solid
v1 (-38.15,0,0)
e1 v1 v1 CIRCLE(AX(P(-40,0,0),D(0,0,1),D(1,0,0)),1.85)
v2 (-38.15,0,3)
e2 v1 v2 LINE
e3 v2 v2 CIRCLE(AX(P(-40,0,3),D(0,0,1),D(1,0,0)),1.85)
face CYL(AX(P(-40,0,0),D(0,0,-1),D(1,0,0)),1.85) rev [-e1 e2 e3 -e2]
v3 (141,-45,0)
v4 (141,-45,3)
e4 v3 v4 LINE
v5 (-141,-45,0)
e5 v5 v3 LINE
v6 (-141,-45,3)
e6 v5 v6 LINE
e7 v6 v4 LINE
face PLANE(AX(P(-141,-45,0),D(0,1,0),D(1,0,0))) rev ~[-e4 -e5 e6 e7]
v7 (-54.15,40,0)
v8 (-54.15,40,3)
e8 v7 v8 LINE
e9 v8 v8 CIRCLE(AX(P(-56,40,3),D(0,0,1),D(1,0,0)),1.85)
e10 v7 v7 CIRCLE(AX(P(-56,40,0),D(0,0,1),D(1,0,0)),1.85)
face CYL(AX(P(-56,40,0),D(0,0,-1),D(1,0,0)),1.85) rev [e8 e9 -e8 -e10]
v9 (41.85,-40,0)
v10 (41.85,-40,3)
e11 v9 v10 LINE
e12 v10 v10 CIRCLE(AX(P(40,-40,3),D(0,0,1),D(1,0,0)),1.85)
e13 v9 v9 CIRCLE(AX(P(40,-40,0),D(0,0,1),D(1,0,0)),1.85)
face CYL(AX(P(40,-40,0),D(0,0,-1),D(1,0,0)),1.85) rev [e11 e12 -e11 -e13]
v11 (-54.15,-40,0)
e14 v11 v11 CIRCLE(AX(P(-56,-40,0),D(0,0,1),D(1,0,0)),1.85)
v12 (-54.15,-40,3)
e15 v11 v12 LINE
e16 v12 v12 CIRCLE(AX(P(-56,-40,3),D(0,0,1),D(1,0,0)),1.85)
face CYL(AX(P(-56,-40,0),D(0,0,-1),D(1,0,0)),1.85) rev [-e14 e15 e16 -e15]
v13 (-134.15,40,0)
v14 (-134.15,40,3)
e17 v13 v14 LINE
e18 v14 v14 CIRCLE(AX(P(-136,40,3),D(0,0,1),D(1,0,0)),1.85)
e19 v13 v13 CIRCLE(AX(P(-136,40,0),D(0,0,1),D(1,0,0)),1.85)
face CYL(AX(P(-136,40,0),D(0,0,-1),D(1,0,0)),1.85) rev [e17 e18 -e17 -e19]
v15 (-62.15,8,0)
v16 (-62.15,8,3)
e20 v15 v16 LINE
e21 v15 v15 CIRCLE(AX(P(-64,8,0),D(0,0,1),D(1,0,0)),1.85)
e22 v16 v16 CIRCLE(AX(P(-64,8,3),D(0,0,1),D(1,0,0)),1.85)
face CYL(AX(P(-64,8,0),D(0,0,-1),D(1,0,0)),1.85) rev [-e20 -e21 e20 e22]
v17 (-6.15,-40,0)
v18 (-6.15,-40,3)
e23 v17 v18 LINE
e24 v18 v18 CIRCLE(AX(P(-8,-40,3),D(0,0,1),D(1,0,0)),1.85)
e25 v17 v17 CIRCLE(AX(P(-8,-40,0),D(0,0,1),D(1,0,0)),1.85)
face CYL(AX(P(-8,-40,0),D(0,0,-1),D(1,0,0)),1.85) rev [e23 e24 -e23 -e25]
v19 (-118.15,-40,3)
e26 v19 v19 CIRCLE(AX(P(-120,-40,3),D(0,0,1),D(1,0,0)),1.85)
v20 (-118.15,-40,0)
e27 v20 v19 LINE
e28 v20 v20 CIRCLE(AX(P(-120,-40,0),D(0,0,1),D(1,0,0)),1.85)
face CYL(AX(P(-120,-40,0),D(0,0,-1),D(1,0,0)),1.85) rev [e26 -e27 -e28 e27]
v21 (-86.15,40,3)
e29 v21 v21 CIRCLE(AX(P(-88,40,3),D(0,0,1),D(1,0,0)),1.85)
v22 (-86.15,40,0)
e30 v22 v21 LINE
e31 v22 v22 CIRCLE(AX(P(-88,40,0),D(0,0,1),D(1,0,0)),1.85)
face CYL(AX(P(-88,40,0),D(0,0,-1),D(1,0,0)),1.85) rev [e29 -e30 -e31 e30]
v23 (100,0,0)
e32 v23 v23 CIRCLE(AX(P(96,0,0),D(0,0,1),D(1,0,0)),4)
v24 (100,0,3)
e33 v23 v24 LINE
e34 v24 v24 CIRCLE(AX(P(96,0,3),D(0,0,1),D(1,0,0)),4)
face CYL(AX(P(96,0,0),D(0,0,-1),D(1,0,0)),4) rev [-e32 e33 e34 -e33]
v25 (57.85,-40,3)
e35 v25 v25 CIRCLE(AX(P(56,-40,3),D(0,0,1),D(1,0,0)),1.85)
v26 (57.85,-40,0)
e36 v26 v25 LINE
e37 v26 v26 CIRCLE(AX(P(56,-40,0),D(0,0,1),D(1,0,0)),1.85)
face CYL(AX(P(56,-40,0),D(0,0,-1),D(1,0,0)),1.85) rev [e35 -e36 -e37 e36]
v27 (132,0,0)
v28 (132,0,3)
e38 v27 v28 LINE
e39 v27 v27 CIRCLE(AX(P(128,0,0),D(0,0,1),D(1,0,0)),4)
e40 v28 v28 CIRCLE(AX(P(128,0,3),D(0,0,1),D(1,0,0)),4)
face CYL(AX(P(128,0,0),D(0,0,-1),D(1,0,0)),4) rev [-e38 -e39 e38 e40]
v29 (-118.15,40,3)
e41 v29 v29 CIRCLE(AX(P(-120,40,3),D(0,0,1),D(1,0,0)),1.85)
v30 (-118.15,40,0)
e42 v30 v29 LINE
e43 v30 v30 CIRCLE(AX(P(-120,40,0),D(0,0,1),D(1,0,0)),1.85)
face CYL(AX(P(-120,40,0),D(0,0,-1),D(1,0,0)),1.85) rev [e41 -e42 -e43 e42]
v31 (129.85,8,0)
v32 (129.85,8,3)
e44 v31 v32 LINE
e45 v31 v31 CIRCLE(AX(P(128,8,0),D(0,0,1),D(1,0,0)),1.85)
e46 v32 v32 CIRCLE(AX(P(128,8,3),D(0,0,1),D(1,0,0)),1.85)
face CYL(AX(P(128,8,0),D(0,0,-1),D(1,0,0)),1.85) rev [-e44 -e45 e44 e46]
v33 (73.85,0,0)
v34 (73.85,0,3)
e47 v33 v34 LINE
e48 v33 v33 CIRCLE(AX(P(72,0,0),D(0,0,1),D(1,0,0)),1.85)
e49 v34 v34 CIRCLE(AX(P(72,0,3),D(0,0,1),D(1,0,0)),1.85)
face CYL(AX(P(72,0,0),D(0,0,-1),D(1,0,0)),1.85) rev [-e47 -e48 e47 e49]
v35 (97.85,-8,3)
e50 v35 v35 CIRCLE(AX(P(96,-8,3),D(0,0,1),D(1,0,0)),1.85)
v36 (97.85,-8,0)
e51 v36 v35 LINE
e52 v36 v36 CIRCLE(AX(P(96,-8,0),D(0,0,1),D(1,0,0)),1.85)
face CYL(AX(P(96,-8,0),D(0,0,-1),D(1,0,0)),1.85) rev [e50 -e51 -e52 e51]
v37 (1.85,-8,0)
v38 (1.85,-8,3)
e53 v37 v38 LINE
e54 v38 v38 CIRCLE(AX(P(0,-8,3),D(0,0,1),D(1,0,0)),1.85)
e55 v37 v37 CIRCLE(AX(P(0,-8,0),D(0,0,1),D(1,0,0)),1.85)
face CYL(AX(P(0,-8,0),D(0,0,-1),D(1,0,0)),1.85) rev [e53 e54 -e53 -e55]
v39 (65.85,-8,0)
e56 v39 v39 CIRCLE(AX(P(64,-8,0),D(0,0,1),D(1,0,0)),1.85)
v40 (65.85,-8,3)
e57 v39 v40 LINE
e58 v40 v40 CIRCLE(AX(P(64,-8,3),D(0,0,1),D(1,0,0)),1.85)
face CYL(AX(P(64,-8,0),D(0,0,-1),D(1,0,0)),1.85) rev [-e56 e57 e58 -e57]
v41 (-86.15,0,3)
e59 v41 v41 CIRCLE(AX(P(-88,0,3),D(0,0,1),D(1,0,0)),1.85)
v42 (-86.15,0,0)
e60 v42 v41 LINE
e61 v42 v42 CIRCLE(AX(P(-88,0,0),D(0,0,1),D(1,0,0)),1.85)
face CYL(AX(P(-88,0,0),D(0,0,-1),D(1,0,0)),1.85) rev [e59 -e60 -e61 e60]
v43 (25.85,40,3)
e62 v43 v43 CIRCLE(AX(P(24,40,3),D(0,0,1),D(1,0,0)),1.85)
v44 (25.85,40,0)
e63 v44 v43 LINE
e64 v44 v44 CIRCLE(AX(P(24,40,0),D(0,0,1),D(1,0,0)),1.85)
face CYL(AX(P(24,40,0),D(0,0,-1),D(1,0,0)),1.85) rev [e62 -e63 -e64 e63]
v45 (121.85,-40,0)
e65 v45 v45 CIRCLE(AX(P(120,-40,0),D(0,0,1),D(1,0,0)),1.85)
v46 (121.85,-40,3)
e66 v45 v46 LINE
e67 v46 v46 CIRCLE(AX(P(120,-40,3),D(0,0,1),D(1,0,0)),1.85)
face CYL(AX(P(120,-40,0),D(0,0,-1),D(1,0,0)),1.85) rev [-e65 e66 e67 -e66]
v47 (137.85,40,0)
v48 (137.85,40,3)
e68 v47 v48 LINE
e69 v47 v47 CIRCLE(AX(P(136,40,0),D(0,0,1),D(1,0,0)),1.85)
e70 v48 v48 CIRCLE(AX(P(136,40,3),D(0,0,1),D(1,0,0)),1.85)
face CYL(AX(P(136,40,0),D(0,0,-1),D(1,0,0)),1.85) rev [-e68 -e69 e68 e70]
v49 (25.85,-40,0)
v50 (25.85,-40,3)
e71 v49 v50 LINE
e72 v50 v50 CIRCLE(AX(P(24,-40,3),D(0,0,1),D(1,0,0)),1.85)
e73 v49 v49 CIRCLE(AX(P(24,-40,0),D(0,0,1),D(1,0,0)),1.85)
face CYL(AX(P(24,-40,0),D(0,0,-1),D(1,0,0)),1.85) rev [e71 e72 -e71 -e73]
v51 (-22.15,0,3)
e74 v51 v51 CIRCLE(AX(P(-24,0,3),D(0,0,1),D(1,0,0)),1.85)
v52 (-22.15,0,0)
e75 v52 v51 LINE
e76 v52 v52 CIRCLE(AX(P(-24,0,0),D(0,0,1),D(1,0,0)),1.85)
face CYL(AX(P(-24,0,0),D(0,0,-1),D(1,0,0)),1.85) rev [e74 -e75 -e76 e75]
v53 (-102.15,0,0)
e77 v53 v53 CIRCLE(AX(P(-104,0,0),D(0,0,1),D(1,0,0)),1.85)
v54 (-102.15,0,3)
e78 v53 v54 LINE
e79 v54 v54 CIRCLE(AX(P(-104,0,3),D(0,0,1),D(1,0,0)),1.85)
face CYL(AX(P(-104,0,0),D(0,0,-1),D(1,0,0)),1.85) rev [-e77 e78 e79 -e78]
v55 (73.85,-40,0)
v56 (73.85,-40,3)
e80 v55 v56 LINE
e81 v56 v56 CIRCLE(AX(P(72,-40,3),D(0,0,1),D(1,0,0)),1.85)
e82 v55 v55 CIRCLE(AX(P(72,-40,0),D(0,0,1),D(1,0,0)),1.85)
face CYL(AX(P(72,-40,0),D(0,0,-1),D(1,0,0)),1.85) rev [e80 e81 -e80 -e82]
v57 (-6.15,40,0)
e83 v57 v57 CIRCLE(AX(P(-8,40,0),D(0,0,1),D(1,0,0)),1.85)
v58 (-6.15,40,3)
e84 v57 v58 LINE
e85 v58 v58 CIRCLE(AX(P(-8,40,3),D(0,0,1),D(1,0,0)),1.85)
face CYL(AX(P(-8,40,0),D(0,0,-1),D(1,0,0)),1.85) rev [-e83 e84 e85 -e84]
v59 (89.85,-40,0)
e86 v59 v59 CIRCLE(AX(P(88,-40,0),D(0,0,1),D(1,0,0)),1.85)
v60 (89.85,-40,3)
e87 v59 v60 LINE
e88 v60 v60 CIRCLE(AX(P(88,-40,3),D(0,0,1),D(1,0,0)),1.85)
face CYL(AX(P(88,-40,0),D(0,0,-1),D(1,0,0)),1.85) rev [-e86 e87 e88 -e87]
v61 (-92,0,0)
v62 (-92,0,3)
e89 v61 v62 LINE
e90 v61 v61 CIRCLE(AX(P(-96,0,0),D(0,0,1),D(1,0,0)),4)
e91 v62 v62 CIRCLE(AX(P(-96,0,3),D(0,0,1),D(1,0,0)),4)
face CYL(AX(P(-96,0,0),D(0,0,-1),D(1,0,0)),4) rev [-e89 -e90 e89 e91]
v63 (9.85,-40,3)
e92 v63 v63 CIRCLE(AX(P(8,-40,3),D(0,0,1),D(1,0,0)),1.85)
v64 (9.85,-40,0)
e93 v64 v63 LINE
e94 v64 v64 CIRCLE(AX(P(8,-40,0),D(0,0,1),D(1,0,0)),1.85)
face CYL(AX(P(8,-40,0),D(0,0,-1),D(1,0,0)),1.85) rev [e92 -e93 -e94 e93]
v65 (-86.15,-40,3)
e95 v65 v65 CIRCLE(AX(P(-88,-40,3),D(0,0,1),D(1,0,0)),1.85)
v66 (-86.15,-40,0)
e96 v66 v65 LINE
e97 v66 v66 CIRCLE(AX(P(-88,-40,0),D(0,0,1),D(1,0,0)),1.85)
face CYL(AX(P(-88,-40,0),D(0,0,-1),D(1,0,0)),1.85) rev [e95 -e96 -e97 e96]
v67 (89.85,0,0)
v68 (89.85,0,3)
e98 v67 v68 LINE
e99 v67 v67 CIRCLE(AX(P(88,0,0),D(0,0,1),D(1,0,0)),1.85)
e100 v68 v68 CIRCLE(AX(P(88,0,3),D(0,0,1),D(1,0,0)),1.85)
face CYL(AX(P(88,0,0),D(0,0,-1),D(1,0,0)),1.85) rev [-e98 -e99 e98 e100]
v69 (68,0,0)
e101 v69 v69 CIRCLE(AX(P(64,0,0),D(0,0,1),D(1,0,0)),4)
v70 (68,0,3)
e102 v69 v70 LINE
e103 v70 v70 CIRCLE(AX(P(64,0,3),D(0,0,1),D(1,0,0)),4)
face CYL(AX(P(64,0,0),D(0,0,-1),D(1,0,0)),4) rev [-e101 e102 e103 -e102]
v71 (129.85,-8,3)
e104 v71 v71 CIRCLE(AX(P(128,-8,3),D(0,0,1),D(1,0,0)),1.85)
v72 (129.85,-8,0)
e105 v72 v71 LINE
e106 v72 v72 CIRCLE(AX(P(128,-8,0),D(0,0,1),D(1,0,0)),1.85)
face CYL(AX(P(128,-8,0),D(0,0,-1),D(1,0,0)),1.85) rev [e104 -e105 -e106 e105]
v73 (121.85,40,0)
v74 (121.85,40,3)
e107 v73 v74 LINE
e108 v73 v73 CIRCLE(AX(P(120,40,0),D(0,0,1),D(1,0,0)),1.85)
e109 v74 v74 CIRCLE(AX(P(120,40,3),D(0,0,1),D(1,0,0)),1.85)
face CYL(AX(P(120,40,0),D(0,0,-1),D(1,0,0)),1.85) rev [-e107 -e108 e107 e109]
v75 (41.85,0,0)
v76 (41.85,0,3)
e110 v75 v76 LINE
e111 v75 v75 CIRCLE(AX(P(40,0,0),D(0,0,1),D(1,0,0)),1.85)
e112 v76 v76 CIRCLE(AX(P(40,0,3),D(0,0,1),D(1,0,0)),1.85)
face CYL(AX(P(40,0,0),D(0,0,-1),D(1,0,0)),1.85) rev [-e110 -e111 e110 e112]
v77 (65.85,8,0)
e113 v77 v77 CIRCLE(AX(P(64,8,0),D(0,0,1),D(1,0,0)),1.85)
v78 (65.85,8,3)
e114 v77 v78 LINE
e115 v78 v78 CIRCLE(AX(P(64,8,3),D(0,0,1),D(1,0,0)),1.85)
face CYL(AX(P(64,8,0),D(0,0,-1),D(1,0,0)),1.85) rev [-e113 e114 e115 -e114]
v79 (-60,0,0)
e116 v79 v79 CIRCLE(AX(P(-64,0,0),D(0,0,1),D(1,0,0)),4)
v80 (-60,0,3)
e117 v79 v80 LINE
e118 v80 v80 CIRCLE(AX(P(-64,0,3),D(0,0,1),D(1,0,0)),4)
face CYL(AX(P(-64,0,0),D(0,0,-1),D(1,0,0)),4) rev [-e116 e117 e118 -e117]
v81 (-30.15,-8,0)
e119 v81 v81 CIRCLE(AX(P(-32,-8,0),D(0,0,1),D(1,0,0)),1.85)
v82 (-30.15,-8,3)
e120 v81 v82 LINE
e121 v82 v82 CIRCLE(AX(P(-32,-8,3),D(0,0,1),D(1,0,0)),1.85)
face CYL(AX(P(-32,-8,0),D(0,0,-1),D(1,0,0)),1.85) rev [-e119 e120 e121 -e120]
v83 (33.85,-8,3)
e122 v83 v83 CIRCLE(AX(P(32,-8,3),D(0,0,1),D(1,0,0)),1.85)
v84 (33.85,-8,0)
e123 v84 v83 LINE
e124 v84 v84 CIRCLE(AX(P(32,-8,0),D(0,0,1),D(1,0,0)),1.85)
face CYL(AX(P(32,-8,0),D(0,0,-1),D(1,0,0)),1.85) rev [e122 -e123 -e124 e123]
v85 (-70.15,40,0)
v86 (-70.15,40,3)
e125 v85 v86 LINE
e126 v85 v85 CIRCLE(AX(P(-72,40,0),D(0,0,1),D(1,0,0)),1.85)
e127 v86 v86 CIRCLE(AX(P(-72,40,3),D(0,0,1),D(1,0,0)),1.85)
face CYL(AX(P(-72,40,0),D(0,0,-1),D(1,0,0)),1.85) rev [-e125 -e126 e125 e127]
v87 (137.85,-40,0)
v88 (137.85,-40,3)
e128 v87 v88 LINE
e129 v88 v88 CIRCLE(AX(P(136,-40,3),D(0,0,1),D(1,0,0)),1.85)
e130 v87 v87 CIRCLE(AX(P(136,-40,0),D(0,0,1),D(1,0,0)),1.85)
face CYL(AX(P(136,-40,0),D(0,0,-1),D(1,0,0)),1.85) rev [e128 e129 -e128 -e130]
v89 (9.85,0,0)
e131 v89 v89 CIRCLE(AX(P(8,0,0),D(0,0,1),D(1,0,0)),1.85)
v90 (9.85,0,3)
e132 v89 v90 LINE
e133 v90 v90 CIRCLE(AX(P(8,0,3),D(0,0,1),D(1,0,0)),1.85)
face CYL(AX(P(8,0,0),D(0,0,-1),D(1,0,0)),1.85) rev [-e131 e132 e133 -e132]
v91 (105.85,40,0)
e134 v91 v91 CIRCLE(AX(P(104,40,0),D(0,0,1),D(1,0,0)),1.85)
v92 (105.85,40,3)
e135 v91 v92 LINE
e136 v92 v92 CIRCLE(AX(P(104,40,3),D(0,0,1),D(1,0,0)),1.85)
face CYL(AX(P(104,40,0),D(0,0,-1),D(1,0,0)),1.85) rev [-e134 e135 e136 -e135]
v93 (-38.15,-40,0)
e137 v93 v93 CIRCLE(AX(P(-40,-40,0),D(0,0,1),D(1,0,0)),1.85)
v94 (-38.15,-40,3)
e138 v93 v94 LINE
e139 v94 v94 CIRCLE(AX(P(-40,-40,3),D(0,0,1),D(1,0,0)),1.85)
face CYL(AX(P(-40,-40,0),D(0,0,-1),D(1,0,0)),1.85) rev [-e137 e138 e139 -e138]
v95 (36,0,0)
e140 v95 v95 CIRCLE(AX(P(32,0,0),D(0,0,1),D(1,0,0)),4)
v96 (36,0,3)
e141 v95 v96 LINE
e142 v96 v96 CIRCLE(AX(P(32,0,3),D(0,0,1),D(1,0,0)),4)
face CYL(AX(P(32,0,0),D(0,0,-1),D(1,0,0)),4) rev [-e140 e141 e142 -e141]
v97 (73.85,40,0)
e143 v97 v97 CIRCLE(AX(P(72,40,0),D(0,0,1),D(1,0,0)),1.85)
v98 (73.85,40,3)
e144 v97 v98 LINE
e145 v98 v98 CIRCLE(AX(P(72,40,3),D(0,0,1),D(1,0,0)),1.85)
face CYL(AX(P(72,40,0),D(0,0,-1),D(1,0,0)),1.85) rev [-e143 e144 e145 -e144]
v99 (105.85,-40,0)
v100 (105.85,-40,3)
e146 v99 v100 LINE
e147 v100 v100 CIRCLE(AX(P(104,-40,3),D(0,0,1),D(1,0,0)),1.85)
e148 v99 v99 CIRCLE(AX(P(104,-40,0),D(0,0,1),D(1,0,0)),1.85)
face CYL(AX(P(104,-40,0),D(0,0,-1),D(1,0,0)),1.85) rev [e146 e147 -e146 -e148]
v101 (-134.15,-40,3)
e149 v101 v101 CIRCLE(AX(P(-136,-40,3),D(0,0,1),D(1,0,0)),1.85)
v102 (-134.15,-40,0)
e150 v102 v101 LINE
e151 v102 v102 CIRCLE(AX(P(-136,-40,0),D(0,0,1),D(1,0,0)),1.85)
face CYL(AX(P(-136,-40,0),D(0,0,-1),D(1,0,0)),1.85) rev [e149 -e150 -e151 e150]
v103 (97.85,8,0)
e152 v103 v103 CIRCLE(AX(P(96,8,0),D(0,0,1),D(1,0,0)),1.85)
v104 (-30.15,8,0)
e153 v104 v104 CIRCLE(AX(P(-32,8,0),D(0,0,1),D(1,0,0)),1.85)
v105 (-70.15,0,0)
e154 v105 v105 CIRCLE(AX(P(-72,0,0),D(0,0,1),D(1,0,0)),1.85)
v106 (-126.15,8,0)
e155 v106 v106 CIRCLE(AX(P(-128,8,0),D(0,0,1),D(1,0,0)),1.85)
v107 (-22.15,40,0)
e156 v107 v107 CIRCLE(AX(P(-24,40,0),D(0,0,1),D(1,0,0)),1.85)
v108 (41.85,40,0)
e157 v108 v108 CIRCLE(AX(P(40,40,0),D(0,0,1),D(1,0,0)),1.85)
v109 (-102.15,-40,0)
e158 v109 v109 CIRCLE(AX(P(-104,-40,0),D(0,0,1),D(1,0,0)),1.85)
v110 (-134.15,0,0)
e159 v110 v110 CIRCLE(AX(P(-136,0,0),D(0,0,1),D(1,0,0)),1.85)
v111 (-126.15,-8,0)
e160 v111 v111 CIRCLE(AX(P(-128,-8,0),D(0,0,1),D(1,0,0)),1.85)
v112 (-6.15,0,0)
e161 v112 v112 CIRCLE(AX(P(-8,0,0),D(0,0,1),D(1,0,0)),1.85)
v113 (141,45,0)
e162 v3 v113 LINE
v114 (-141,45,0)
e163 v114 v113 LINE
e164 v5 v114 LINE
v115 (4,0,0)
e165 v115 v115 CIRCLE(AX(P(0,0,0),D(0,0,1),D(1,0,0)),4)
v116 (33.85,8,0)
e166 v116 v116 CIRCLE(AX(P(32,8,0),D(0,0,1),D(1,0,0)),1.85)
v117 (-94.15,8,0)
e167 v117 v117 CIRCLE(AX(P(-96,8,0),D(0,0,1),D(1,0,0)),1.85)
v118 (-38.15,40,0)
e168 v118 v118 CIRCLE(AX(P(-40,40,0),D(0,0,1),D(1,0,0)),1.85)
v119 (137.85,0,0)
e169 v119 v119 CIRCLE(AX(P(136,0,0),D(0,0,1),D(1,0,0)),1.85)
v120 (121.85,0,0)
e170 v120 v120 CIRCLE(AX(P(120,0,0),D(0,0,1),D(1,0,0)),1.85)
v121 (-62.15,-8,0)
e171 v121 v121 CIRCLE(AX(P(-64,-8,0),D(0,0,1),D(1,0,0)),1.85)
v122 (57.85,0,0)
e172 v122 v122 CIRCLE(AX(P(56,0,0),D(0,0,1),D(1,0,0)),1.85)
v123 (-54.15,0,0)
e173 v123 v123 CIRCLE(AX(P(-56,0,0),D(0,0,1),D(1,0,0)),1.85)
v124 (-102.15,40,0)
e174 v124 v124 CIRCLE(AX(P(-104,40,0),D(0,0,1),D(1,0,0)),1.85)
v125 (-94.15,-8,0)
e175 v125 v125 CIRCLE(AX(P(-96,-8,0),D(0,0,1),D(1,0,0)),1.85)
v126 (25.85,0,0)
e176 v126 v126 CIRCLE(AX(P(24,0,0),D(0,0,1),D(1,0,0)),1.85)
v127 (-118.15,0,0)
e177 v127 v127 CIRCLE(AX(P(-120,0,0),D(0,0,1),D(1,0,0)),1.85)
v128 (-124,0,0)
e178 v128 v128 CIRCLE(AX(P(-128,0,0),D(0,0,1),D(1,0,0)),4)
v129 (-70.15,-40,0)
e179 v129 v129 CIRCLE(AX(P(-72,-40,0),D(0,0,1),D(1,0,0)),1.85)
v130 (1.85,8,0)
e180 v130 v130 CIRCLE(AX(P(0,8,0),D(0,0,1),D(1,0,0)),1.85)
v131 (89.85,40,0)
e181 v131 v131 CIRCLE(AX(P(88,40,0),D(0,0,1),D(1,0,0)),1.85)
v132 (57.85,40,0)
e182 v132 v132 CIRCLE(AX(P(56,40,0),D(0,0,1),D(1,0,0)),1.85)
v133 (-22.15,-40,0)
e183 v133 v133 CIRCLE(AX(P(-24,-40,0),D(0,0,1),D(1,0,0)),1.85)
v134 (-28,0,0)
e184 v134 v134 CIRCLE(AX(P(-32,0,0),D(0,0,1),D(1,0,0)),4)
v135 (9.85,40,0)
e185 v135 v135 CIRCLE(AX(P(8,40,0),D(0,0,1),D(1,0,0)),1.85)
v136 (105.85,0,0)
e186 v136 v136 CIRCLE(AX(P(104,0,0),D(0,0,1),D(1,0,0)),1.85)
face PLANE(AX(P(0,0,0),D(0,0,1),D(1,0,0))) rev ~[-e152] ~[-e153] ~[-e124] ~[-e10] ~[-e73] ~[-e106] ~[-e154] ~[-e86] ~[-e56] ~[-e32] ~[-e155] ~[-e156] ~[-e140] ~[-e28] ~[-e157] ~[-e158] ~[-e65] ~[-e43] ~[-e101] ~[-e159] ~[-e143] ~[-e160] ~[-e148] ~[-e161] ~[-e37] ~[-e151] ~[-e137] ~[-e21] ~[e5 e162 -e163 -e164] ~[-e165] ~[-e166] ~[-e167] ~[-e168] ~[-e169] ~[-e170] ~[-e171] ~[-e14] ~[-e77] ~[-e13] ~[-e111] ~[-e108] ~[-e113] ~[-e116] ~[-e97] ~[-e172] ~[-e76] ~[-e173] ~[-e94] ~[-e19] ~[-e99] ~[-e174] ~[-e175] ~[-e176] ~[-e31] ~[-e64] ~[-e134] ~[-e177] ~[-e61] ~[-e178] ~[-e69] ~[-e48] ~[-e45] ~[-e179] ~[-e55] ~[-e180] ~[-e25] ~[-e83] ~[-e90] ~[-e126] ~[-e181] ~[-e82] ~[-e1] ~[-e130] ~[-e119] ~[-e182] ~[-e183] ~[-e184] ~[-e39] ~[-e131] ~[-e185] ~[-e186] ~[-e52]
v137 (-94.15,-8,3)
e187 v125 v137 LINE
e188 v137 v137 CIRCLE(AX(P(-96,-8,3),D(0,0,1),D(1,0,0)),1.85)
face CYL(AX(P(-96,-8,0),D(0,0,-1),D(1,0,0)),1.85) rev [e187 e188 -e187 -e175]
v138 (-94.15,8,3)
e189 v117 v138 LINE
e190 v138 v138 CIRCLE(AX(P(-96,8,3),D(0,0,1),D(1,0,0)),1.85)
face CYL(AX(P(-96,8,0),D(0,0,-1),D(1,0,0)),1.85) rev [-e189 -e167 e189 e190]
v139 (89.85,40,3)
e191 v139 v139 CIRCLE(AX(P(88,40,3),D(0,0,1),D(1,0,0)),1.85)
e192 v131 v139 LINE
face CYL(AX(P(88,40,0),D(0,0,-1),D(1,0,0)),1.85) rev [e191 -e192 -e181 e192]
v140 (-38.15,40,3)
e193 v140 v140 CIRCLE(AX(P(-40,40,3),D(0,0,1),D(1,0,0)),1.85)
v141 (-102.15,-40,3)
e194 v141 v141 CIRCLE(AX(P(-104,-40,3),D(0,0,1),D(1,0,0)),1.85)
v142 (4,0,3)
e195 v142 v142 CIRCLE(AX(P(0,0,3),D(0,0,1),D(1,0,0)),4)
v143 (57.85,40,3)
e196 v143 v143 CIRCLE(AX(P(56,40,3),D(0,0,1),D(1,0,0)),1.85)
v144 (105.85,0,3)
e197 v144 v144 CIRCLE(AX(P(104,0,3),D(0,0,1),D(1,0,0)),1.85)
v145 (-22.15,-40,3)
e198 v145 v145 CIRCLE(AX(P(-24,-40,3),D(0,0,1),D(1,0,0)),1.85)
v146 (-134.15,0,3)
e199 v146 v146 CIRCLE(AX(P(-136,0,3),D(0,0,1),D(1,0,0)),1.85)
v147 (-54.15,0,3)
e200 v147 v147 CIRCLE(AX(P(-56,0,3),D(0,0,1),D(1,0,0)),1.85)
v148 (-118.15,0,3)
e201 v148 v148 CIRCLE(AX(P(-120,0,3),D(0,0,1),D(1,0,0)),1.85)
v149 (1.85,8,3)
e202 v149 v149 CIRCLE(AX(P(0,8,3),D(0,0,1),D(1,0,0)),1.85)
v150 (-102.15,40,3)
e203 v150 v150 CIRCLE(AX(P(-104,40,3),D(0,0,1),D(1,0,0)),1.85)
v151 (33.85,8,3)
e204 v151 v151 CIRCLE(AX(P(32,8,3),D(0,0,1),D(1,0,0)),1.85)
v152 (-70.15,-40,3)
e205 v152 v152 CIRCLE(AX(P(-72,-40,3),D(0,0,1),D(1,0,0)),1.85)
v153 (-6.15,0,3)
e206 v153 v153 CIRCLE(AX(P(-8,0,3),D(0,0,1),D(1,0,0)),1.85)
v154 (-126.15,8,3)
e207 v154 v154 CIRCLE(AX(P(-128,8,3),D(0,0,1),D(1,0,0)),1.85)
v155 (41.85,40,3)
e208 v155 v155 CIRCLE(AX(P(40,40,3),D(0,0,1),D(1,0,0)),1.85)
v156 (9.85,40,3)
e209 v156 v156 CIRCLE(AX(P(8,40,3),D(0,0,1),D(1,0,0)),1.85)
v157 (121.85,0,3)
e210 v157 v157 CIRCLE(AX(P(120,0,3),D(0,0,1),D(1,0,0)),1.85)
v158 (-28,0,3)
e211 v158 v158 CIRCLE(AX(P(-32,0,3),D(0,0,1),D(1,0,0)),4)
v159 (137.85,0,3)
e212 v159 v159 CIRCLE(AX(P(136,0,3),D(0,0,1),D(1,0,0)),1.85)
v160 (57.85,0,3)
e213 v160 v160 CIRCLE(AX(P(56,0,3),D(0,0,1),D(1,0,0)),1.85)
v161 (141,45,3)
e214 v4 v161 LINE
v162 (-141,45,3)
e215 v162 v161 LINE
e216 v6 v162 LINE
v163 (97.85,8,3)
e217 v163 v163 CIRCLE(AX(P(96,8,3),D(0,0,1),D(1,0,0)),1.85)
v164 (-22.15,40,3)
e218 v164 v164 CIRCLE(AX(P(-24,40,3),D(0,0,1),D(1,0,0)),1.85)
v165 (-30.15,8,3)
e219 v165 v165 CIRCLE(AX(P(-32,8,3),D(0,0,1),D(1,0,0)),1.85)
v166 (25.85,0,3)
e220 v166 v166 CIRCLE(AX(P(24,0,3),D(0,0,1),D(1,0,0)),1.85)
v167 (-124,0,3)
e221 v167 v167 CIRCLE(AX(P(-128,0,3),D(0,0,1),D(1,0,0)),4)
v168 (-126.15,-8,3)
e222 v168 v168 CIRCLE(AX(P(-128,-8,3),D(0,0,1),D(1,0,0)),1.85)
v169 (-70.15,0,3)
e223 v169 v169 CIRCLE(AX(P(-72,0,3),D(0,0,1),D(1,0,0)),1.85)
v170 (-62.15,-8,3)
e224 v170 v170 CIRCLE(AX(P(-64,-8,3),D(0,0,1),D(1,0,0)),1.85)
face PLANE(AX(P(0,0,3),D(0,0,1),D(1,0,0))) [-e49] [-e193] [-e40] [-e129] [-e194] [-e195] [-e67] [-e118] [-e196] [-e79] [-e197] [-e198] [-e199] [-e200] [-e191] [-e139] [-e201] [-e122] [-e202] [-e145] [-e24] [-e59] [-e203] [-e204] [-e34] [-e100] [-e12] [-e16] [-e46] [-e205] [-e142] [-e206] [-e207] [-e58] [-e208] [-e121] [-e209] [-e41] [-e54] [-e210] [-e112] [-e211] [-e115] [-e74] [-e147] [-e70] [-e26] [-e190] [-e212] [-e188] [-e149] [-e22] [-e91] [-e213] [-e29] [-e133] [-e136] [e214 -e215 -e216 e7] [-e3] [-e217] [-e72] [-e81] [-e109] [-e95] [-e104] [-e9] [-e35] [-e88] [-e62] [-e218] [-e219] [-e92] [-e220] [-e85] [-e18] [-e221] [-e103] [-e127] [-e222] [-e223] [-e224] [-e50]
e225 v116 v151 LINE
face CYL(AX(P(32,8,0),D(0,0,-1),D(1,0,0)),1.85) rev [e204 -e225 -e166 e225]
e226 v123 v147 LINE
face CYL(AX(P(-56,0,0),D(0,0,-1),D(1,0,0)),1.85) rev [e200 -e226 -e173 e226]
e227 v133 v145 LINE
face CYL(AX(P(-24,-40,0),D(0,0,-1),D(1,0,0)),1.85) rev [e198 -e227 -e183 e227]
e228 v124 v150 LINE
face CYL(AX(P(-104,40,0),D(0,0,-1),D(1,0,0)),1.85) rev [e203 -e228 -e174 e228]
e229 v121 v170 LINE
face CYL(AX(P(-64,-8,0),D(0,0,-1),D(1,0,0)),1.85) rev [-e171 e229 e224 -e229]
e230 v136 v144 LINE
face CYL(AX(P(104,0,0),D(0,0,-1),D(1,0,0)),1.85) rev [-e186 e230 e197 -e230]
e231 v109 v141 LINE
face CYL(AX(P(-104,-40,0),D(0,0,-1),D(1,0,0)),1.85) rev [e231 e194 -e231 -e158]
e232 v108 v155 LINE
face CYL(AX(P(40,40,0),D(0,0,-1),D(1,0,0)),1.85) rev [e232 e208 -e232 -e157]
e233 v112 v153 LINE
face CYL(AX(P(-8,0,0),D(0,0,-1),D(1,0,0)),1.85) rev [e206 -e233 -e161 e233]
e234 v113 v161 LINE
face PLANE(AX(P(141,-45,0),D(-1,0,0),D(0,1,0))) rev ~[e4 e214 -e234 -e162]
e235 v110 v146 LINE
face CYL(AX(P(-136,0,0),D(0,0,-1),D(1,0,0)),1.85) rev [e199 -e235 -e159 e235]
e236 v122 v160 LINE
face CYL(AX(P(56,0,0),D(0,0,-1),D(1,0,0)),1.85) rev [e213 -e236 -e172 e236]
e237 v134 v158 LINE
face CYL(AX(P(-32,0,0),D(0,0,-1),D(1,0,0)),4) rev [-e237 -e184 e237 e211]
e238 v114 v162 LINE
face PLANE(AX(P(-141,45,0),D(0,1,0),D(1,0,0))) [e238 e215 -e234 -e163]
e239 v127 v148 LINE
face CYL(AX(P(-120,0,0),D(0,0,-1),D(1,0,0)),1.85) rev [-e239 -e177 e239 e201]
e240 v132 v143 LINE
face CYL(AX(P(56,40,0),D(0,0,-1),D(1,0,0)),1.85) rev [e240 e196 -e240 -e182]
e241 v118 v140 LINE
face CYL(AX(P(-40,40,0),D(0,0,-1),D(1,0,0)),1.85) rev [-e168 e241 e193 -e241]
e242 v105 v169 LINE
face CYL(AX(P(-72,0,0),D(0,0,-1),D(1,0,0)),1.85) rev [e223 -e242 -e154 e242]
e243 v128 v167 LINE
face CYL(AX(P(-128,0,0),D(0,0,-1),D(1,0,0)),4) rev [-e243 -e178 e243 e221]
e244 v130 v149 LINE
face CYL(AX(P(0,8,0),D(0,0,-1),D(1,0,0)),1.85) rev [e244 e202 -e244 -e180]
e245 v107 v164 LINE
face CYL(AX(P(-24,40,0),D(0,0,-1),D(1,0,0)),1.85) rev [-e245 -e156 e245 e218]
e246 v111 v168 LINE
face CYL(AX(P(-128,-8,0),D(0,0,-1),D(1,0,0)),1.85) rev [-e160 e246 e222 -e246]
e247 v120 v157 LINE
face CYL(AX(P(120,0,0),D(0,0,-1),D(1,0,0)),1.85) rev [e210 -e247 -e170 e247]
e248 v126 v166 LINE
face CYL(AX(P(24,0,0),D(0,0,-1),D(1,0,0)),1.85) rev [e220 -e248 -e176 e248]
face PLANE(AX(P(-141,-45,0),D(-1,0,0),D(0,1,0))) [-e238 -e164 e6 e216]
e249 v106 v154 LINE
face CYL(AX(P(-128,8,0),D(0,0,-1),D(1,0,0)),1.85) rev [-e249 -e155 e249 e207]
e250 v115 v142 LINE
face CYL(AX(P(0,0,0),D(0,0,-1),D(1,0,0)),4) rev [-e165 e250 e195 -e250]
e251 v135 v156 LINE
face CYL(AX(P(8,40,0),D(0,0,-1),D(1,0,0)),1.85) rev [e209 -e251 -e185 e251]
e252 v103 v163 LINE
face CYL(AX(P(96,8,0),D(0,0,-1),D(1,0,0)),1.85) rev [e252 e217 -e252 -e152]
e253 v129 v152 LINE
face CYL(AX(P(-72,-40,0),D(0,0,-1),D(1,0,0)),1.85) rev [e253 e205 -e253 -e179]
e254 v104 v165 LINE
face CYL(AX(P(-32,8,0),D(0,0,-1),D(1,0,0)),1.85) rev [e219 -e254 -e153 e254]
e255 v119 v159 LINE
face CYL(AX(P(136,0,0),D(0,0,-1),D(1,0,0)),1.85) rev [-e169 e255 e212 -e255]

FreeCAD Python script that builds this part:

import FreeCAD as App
import Part
import Sketcher
from FreeCAD import Vector
Q = App.Units.Quantity


def add_polygon(sketch, points):
    """Adds a closed chain of lines whose ends are joined by coincident constraints."""
    first, n = sketch.GeometryCount, len(points)
    for a, b in zip(points, points[1:] + points[:1]):
        sketch.addGeometry(Part.LineSegment(App.Vector(*a, 0), App.Vector(*b, 0)), False)
    for i in range(n):
        sketch.addConstraint(Sketcher.Constraint("Coincident", first + i, 2, first + (i + 1) % n, 1))

doc = App.newDocument("Part")
params = doc.addObject("Spreadsheet::Sheet", "Params")
for row, (alias, value) in enumerate([
    ("sketch1_diameter", "8 mm"),
    ("sketch1_diameter2", "3.7 mm"),
    ("sketch1_width", "282 mm"),
    ("sketch1_height", "90 mm"),
    ("pad1_length", "3 mm"),
], start=1):
    params.set(f"A{row}", alias)
    params.set(f"B{row}", "=" + value)
    params.setAlias(f"B{row}", alias)

body = doc.addObject("PartDesign::Body", "Body")

sketch1 = doc.addObject("Sketcher::SketchObject", "Sketch")
body.addObject(sketch1)
sketch1.AttachmentSupport = (doc.XY_Plane, [""])
sketch1.MapMode = "FlatFace"
add_polygon(sketch1, [(-141, 45), (-141, -45), (141, -45), (141, 45)])
sketch1.addGeometry(Part.Circle(Vector(-136, -40, 0), Vector(0, 0, 1), 1.9), False)
sketch1.addGeometry(Part.Circle(Vector(-120, -40, 0), Vector(0, 0, 1), 1.9), False)
sketch1.addGeometry(Part.Circle(Vector(-104, -40, 0), Vector(0, 0, 1), 1.9), False)
sketch1.addGeometry(Part.Circle(Vector(-88, -40, 0), Vector(0, 0, 1), 1.9), False)
sketch1.addGeometry(Part.Circle(Vector(-72, -40, 0), Vector(0, 0, 1), 1.9), False)
sketch1.addGeometry(Part.Circle(Vector(-56, -40, 0), Vector(0, 0, 1), 1.9), False)
sketch1.addGeometry(Part.Circle(Vector(-40, -40, 0), Vector(0, 0, 1), 1.9), False)
sketch1.addGeometry(Part.Circle(Vector(-24, -40, 0), Vector(0, 0, 1), 1.9), False)
sketch1.addGeometry(Part.Circle(Vector(-8, -40, 0), Vector(0, 0, 1), 1.9), False)
sketch1.addGeometry(Part.Circle(Vector(-128, -8, 0), Vector(0, 0, 1), 1.9), False)
sketch1.addGeometry(Part.Circle(Vector(-136, 0, 0), Vector(0, 0, 1), 1.9), False)
sketch1.addGeometry(Part.Circle(Vector(-128, 0, 0), Vector(0, 0, 1), 4), False)
sketch1.addGeometry(Part.Circle(Vector(-120, 0, 0), Vector(0, 0, 1), 1.9), False)
sketch1.addGeometry(Part.Circle(Vector(-104, 0, 0), Vector(0, 0, 1), 1.9), False)
sketch1.addGeometry(Part.Circle(Vector(-96, -8, 0), Vector(0, 0, 1), 1.9), False)
sketch1.addGeometry(Part.Circle(Vector(-96, 0, 0), Vector(0, 0, 1), 4), False)
sketch1.addGeometry(Part.Circle(Vector(-88, 0, 0), Vector(0, 0, 1), 1.9), False)
sketch1.addGeometry(Part.Circle(Vector(-72, 0, 0), Vector(0, 0, 1), 1.9), False)
sketch1.addGeometry(Part.Circle(Vector(-64, -8, 0), Vector(0, 0, 1), 1.9), False)
sketch1.addGeometry(Part.Circle(Vector(-64, 0, 0), Vector(0, 0, 1), 4), False)
sketch1.addGeometry(Part.Circle(Vector(-56, 0, 0), Vector(0, 0, 1), 1.9), False)
sketch1.addGeometry(Part.Circle(Vector(-40, 0, 0), Vector(0, 0, 1), 1.9), False)
sketch1.addGeometry(Part.Circle(Vector(-32, -8, 0), Vector(0, 0, 1), 1.9), False)
sketch1.addGeometry(Part.Circle(Vector(-32, 0, 0), Vector(0, 0, 1), 4), False)
sketch1.addGeometry(Part.Circle(Vector(-24, 0, 0), Vector(0, 0, 1), 1.9), False)
sketch1.addGeometry(Part.Circle(Vector(-8, 0, 0), Vector(0, 0, 1), 1.9), False)
sketch1.addGeometry(Part.Circle(Vector(8, -40, 0), Vector(0, 0, 1), 1.9), False)
sketch1.addGeometry(Part.Circle(Vector(24, -40, 0), Vector(0, 0, 1), 1.9), False)
sketch1.addGeometry(Part.Circle(Vector(40, -40, 0), Vector(0, 0, 1), 1.9), False)
sketch1.addGeometry(Part.Circle(Vector(56, -40, 0), Vector(0, 0, 1), 1.9), False)
sketch1.addGeometry(Part.Circle(Vector(72, -40, 0), Vector(0, 0, 1), 1.9), False)
sketch1.addGeometry(Part.Circle(Vector(88, -40, 0), Vector(0, 0, 1), 1.9), False)
sketch1.addGeometry(Part.Circle(Vector(104, -40, 0), Vector(0, 0, 1), 1.9), False)
sketch1.addGeometry(Part.Circle(Vector(120, -40, 0), Vector(0, 0, 1), 1.9), False)
sketch1.addGeometry(Part.Circle(Vector(136, -40, 0), Vector(0, 0, 1), 1.9), False)
sketch1.addGeometry(Part.Circle(Vector(0, -8, 0), Vector(0, 0, 1), 1.9), False)
sketch1.addGeometry(Part.Circle(Vector(32, -8, 0), Vector(0, 0, 1), 1.9), False)
sketch1.addGeometry(Part.Circle(Vector(0, 0, 0), Vector(0, 0, 1), 4), False)
sketch1.addGeometry(Part.Circle(Vector(8, 0, 0), Vector(0, 0, 1), 1.9), False)
sketch1.addGeometry(Part.Circle(Vector(24, 0, 0), Vector(0, 0, 1), 1.9), False)
sketch1.addGeometry(Part.Circle(Vector(32, 0, 0), Vector(0, 0, 1), 4), False)
sketch1.addGeometry(Part.Circle(Vector(64, -8, 0), Vector(0, 0, 1), 1.9), False)
sketch1.addGeometry(Part.Circle(Vector(40, 0, 0), Vector(0, 0, 1), 1.9), False)
sketch1.addGeometry(Part.Circle(Vector(56, 0, 0), Vector(0, 0, 1), 1.9), False)
sketch1.addGeometry(Part.Circle(Vector(64, 0, 0), Vector(0, 0, 1), 4), False)
sketch1.addGeometry(Part.Circle(Vector(96, -8, 0), Vector(0, 0, 1), 1.9), False)
sketch1.addGeometry(Part.Circle(Vector(72, 0, 0), Vector(0, 0, 1), 1.9), False)
sketch1.addGeometry(Part.Circle(Vector(88, 0, 0), Vector(0, 0, 1), 1.9), False)
sketch1.addGeometry(Part.Circle(Vector(96, 0, 0), Vector(0, 0, 1), 4), False)
sketch1.addGeometry(Part.Circle(Vector(128, -8, 0), Vector(0, 0, 1), 1.9), False)
sketch1.addGeometry(Part.Circle(Vector(104, 0, 0), Vector(0, 0, 1), 1.9), False)
sketch1.addGeometry(Part.Circle(Vector(120, 0, 0), Vector(0, 0, 1), 1.9), False)
sketch1.addGeometry(Part.Circle(Vector(128, 0, 0), Vector(0, 0, 1), 4), False)
sketch1.addGeometry(Part.Circle(Vector(136, 0, 0), Vector(0, 0, 1), 1.9), False)
sketch1.addGeometry(Part.Circle(Vector(-128, 8, 0), Vector(0, 0, 1), 1.9), False)
sketch1.addGeometry(Part.Circle(Vector(-96, 8, 0), Vector(0, 0, 1), 1.9), False)
sketch1.addGeometry(Part.Circle(Vector(-64, 8, 0), Vector(0, 0, 1), 1.9), False)
sketch1.addGeometry(Part.Circle(Vector(-32, 8, 0), Vector(0, 0, 1), 1.9), False)
sketch1.addGeometry(Part.Circle(Vector(-136, 40, 0), Vector(0, 0, 1), 1.9), False)
sketch1.addGeometry(Part.Circle(Vector(-120, 40, 0), Vector(0, 0, 1), 1.9), False)
sketch1.addGeometry(Part.Circle(Vector(-104, 40, 0), Vector(0, 0, 1), 1.9), False)
sketch1.addGeometry(Part.Circle(Vector(-88, 40, 0), Vector(0, 0, 1), 1.9), False)
sketch1.addGeometry(Part.Circle(Vector(-72, 40, 0), Vector(0, 0, 1), 1.9), False)
sketch1.addGeometry(Part.Circle(Vector(-56, 40, 0), Vector(0, 0, 1), 1.9), False)
sketch1.addGeometry(Part.Circle(Vector(-40, 40, 0), Vector(0, 0, 1), 1.9), False)
sketch1.addGeometry(Part.Circle(Vector(-24, 40, 0), Vector(0, 0, 1), 1.9), False)
sketch1.addGeometry(Part.Circle(Vector(-8, 40, 0), Vector(0, 0, 1), 1.9), False)
sketch1.addGeometry(Part.Circle(Vector(0, 8, 0), Vector(0, 0, 1), 1.9), False)
sketch1.addGeometry(Part.Circle(Vector(32, 8, 0), Vector(0, 0, 1), 1.9), False)
sketch1.addGeometry(Part.Circle(Vector(64, 8, 0), Vector(0, 0, 1), 1.9), False)
sketch1.addGeometry(Part.Circle(Vector(96, 8, 0), Vector(0, 0, 1), 1.9), False)
sketch1.addGeometry(Part.Circle(Vector(128, 8, 0), Vector(0, 0, 1), 1.9), False)
sketch1.addGeometry(Part.Circle(Vector(8, 40, 0), Vector(0, 0, 1), 1.9), False)
sketch1.addGeometry(Part.Circle(Vector(24, 40, 0), Vector(0, 0, 1), 1.9), False)
sketch1.addGeometry(Part.Circle(Vector(40, 40, 0), Vector(0, 0, 1), 1.9), False)
sketch1.addGeometry(Part.Circle(Vector(56, 40, 0), Vector(0, 0, 1), 1.9), False)
sketch1.addGeometry(Part.Circle(Vector(72, 40, 0), Vector(0, 0, 1), 1.9), False)
sketch1.addGeometry(Part.Circle(Vector(88, 40, 0), Vector(0, 0, 1), 1.9), False)
sketch1.addGeometry(Part.Circle(Vector(104, 40, 0), Vector(0, 0, 1), 1.9), False)
sketch1.addGeometry(Part.Circle(Vector(120, 40, 0), Vector(0, 0, 1), 1.9), False)
sketch1.addGeometry(Part.Circle(Vector(136, 40, 0), Vector(0, 0, 1), 1.9), False)
sketch1.addConstraint(Sketcher.Constraint("Vertical", 0))
sketch1.addConstraint(Sketcher.Constraint("Horizontal", 1))
sketch1.addConstraint(Sketcher.Constraint("Vertical", 2))
sketch1.addConstraint(Sketcher.Constraint("Horizontal", 3))
sketch1.addConstraint(Sketcher.Constraint("Coincident", 41, 3, -1, 1))
sketch1.addConstraint(Sketcher.Constraint("Equal", 4, 5))
sketch1.addConstraint(Sketcher.Constraint("Equal", 5, 6))
sketch1.addConstraint(Sketcher.Constraint("Equal", 6, 7))
sketch1.addConstraint(Sketcher.Constraint("Equal", 7, 8))
sketch1.addConstraint(Sketcher.Constraint("Equal", 8, 9))
sketch1.addConstraint(Sketcher.Constraint("Equal", 9, 10))
sketch1.addConstraint(Sketcher.Constraint("Equal", 10, 11))
sketch1.addConstraint(Sketcher.Constraint("Equal", 11, 12))
sketch1.addConstraint(Sketcher.Constraint("Equal", 12, 13))
sketch1.addConstraint(Sketcher.Constraint("Equal", 13, 14))
sketch1.addConstraint(Sketcher.Constraint("Equal", 14, 16))
sketch1.addConstraint(Sketcher.Constraint("Equal", 16, 17))
sketch1.addConstraint(Sketcher.Constraint("Equal", 17, 18))
sketch1.addConstraint(Sketcher.Constraint("Equal", 15, 19))
sketch1.addConstraint(Sketcher.Constraint("Equal", 18, 20))
sketch1.addConstraint(Sketcher.Constraint("Equal", 20, 21))
sketch1.addConstraint(Sketcher.Constraint("Equal", 21, 22))
sketch1.addConstraint(Sketcher.Constraint("Equal", 19, 23))
sketch1.addConstraint(Sketcher.Constraint("Equal", 22, 24))
sketch1.addConstraint(Sketcher.Constraint("Equal", 24, 25))
sketch1.addConstraint(Sketcher.Constraint("Equal", 25, 26))
sketch1.addConstraint(Sketcher.Constraint("Equal", 23, 27))
sketch1.addConstraint(Sketcher.Constraint("Equal", 26, 28))
sketch1.addConstraint(Sketcher.Constraint("Equal", 28, 29))
sketch1.addConstraint(Sketcher.Constraint("Equal", 29, 30))
sketch1.addConstraint(Sketcher.Constraint("Equal", 30, 31))
sketch1.addConstraint(Sketcher.Constraint("Equal", 31, 32))
sketch1.addConstraint(Sketcher.Constraint("Equal", 32, 33))
sketch1.addConstraint(Sketcher.Constraint("Equal", 33, 34))
sketch1.addConstraint(Sketcher.Constraint("Equal", 34, 35))
sketch1.addConstraint(Sketcher.Constraint("Equal", 35, 36))
sketch1.addConstraint(Sketcher.Constraint("Equal", 36, 37))
sketch1.addConstraint(Sketcher.Constraint("Equal", 37, 38))
sketch1.addConstraint(Sketcher.Constraint("Equal", 38, 39))
sketch1.addConstraint(Sketcher.Constraint("Equal", 39, 40))
sketch1.addConstraint(Sketcher.Constraint("Equal", 27, 41))
sketch1.addConstraint(Sketcher.Constraint("Equal", 40, 42))
sketch1.addConstraint(Sketcher.Constraint("Equal", 42, 43))
sketch1.addConstraint(Sketcher.Constraint("Equal", 41, 44))
sketch1.addConstraint(Sketcher.Constraint("Equal", 43, 45))
sketch1.addConstraint(Sketcher.Constraint("Equal", 45, 46))
sketch1.addConstraint(Sketcher.Constraint("Equal", 46, 47))
sketch1.addConstraint(Sketcher.Constraint("Equal", 44, 48))
sketch1.addConstraint(Sketcher.Constraint("Equal", 47, 49))
sketch1.addConstraint(Sketcher.Constraint("Equal", 49, 50))
sketch1.addConstraint(Sketcher.Constraint("Equal", 50, 51))
sketch1.addConstraint(Sketcher.Constraint("Equal", 48, 52))
sketch1.addConstraint(Sketcher.Constraint("Equal", 51, 53))
sketch1.addConstraint(Sketcher.Constraint("Equal", 53, 54))
sketch1.addConstraint(Sketcher.Constraint("Equal", 54, 55))
sketch1.addConstraint(Sketcher.Constraint("Equal", 52, 56))
sketch1.addConstraint(Sketcher.Constraint("Equal", 55, 57))
sketch1.addConstraint(Sketcher.Constraint("Equal", 57, 58))
sketch1.addConstraint(Sketcher.Constraint("Equal", 58, 59))
sketch1.addConstraint(Sketcher.Constraint("Equal", 59, 60))
sketch1.addConstraint(Sketcher.Constraint("Equal", 60, 61))
sketch1.addConstraint(Sketcher.Constraint("Equal", 61, 62))
sketch1.addConstraint(Sketcher.Constraint("Equal", 62, 63))
sketch1.addConstraint(Sketcher.Constraint("Equal", 63, 64))
sketch1.addConstraint(Sketcher.Constraint("Equal", 64, 65))
sketch1.addConstraint(Sketcher.Constraint("Equal", 65, 66))
sketch1.addConstraint(Sketcher.Constraint("Equal", 66, 67))
sketch1.addConstraint(Sketcher.Constraint("Equal", 67, 68))
sketch1.addConstraint(Sketcher.Constraint("Equal", 68, 69))
sketch1.addConstraint(Sketcher.Constraint("Equal", 69, 70))
sketch1.addConstraint(Sketcher.Constraint("Equal", 70, 71))
sketch1.addConstraint(Sketcher.Constraint("Equal", 71, 72))
sketch1.addConstraint(Sketcher.Constraint("Equal", 72, 73))
sketch1.addConstraint(Sketcher.Constraint("Equal", 73, 74))
sketch1.addConstraint(Sketcher.Constraint("Equal", 74, 75))
sketch1.addConstraint(Sketcher.Constraint("Equal", 75, 76))
sketch1.addConstraint(Sketcher.Constraint("Equal", 76, 77))
sketch1.addConstraint(Sketcher.Constraint("Equal", 77, 78))
sketch1.addConstraint(Sketcher.Constraint("Equal", 78, 79))
sketch1.addConstraint(Sketcher.Constraint("Equal", 79, 80))
sketch1.addConstraint(Sketcher.Constraint("Equal", 80, 81))
sketch1.addConstraint(Sketcher.Constraint("Equal", 81, 82))
sketch1.addConstraint(Sketcher.Constraint("Equal", 82, 83))
sketch1.addConstraint(Sketcher.Constraint("Equal", 83, 84))
sketch1.addConstraint(Sketcher.Constraint("Symmetric", 29, 3, 42, 3, -1, 1))
sketch1.addConstraint(Sketcher.Constraint("Symmetric", 28, 3, 43, 3, -1, 1))
sketch1.addConstraint(Sketcher.Constraint("Symmetric", 27, 3, 44, 3, -1, 1))
sketch1.addConstraint(Sketcher.Constraint("Symmetric", 25, 3, 46, 3, -1, 1))
sketch1.addConstraint(Sketcher.Constraint("Symmetric", 24, 3, 47, 3, -1, 1))
sketch1.addConstraint(Sketcher.Constraint("Symmetric", 23, 3, 48, 3, -1, 1))
sketch1.addConstraint(Sketcher.Constraint("Symmetric", 21, 3, 50, 3, -1, 1))
sketch1.addConstraint(Sketcher.Constraint("Symmetric", 20, 3, 51, 3, -1, 1))
sketch1.addConstraint(Sketcher.Constraint("Symmetric", 19, 3, 52, 3, -1, 1))
sketch1.addConstraint(Sketcher.Constraint("Symmetric", 17, 3, 54, 3, -1, 1))
sketch1.addConstraint(Sketcher.Constraint("Symmetric", 16, 3, 55, 3, -1, 1))
sketch1.addConstraint(Sketcher.Constraint("Symmetric", 15, 3, 56, 3, -1, 1))
sketch1.addConstraint(Sketcher.Constraint("Symmetric", 14, 3, 57, 3, -1, 1))
sketch1.addConstraint(Sketcher.Constraint("Symmetric", 53, 3, 58, 3, -1, 1))
sketch1.addConstraint(Sketcher.Constraint("Symmetric", 49, 3, 59, 3, -1, 1))
sketch1.addConstraint(Sketcher.Constraint("Symmetric", 45, 3, 60, 3, -1, 1))
sketch1.addConstraint(Sketcher.Constraint("Symmetric", 40, 3, 61, 3, -1, 1))
sketch1.addConstraint(Sketcher.Constraint("Symmetric", 38, 3, 62, 3, -1, 1))
sketch1.addConstraint(Sketcher.Constraint("Symmetric", 37, 3, 63, 3, -1, 1))
sketch1.addConstraint(Sketcher.Constraint("Symmetric", 36, 3, 64, 3, -1, 1))
sketch1.addConstraint(Sketcher.Constraint("Symmetric", 35, 3, 65, 3, -1, 1))
sketch1.addConstraint(Sketcher.Constraint("Symmetric", 34, 3, 66, 3, -1, 1))
sketch1.addConstraint(Sketcher.Constraint("Symmetric", 33, 3, 67, 3, -1, 1))
sketch1.addConstraint(Sketcher.Constraint("Symmetric", 32, 3, 68, 3, -1, 1))
sketch1.addConstraint(Sketcher.Constraint("Symmetric", 31, 3, 69, 3, -1, 1))
sketch1.addConstraint(Sketcher.Constraint("Symmetric", 30, 3, 70, 3, -1, 1))
sketch1.addConstraint(Sketcher.Constraint("Symmetric", 39, 3, 71, 3, -1, 1))
sketch1.addConstraint(Sketcher.Constraint("Symmetric", 26, 3, 72, 3, -1, 1))
sketch1.addConstraint(Sketcher.Constraint("Symmetric", 22, 3, 73, 3, -1, 1))
sketch1.addConstraint(Sketcher.Constraint("Symmetric", 18, 3, 74, 3, -1, 1))
sketch1.addConstraint(Sketcher.Constraint("Symmetric", 13, 3, 75, 3, -1, 1))
sketch1.addConstraint(Sketcher.Constraint("Symmetric", 12, 3, 76, 3, -1, 1))
sketch1.addConstraint(Sketcher.Constraint("Symmetric", 11, 3, 77, 3, -1, 1))
sketch1.addConstraint(Sketcher.Constraint("Symmetric", 10, 3, 78, 3, -1, 1))
sketch1.addConstraint(Sketcher.Constraint("Symmetric", 9, 3, 79, 3, -1, 1))
sketch1.addConstraint(Sketcher.Constraint("Symmetric", 8, 3, 80, 3, -1, 1))
sketch1.addConstraint(Sketcher.Constraint("Symmetric", 7, 3, 81, 3, -1, 1))
sketch1.addConstraint(Sketcher.Constraint("Symmetric", 6, 3, 82, 3, -1, 1))
sketch1.addConstraint(Sketcher.Constraint("Symmetric", 5, 3, 83, 3, -1, 1))
sketch1.addConstraint(Sketcher.Constraint("Symmetric", 4, 3, 84, 3, -1, 1))
sketch1.addConstraint(Sketcher.Constraint("Symmetric", 0, 2, 2, 2, -1, 1))
sketch1.addConstraint(Sketcher.Constraint("Symmetric", 12, 3, 30, 3, -2))
sketch1.addConstraint(Sketcher.Constraint("Symmetric", 11, 3, 31, 3, -2))
sketch1.addConstraint(Sketcher.Constraint("Symmetric", 10, 3, 32, 3, -2))
sketch1.addConstraint(Sketcher.Constraint("Symmetric", 9, 3, 33, 3, -2))
sketch1.addConstraint(Sketcher.Constraint("Symmetric", 8, 3, 34, 3, -2))
sketch1.addConstraint(Sketcher.Constraint("Symmetric", 7, 3, 35, 3, -2))
sketch1.addConstraint(Sketcher.Constraint("Symmetric", 6, 3, 36, 3, -2))
sketch1.addConstraint(Sketcher.Constraint("Symmetric", 5, 3, 37, 3, -2))
sketch1.addConstraint(Sketcher.Constraint("Symmetric", 4, 3, 38, 3, -2))
sketch1.addConstraint(Sketcher.Constraint("Symmetric", 26, 3, 40, 3, -2))
sketch1.addConstraint(Sketcher.Constraint("Symmetric", 22, 3, 45, 3, -2))
sketch1.addConstraint(Sketcher.Constraint("Symmetric", 18, 3, 49, 3, -2))
sketch1.addConstraint(Sketcher.Constraint("Symmetric", 13, 3, 53, 3, -2))
sketch1.addConstraint(Sketcher.Constraint("PointOnObject", 14, 3, -1))
sketch1.addConstraint(Sketcher.Constraint("PointOnObject", 15, 3, -1))
sketch1.addConstraint(Sketcher.Constraint("PointOnObject", 16, 3, -1))
sketch1.addConstraint(Sketcher.Constraint("PointOnObject", 17, 3, -1))
sketch1.addConstraint(Sketcher.Constraint("PointOnObject", 19, 3, -1))
sketch1.addConstraint(Sketcher.Constraint("PointOnObject", 20, 3, -1))
sketch1.addConstraint(Sketcher.Constraint("PointOnObject", 21, 3, -1))
sketch1.addConstraint(Sketcher.Constraint("PointOnObject", 23, 3, -1))
sketch1.addConstraint(Sketcher.Constraint("PointOnObject", 24, 3, -1))
sketch1.addConstraint(Sketcher.Constraint("PointOnObject", 25, 3, -1))
sketch1.addConstraint(Sketcher.Constraint("PointOnObject", 27, 3, -1))
sketch1.addConstraint(Sketcher.Constraint("PointOnObject", 28, 3, -1))
sketch1.addConstraint(Sketcher.Constraint("PointOnObject", 29, 3, -1))
sketch1.addConstraint(Sketcher.Constraint("PointOnObject", 39, 3, -2))
sketch1.addConstraint(Sketcher.Constraint("Horizontal", 4, 3, 5, 3))
sketch1.addConstraint(Sketcher.Constraint("Horizontal", 5, 3, 6, 3))
sketch1.addConstraint(Sketcher.Constraint("Horizontal", 6, 3, 7, 3))
sketch1.addConstraint(Sketcher.Constraint("Horizontal", 7, 3, 8, 3))
sketch1.addConstraint(Sketcher.Constraint("Horizontal", 8, 3, 9, 3))
sketch1.addConstraint(Sketcher.Constraint("Horizontal", 9, 3, 10, 3))
sketch1.addConstraint(Sketcher.Constraint("Horizontal", 10, 3, 11, 3))
sketch1.addConstraint(Sketcher.Constraint("Horizontal", 11, 3, 12, 3))
sketch1.addConstraint(Sketcher.Constraint("Horizontal", 13, 3, 18, 3))
sketch1.addConstraint(Sketcher.Constraint("Horizontal", 18, 3, 22, 3))
sketch1.addConstraint(Sketcher.Constraint("Horizontal", 22, 3, 26, 3))
sketch1.addConstraint(Sketcher.Constraint("Horizontal", 26, 3, 39, 3))
sketch1.addConstraint(Sketcher.Constraint("Vertical", 4, 3, 14, 3))
sketch1.addConstraint(Sketcher.Constraint("Vertical", 13, 3, 15, 3))
sketch1.addConstraint(Sketcher.Constraint("Vertical", 5, 3, 16, 3))
sketch1.addConstraint(Sketcher.Constraint("Vertical", 6, 3, 17, 3))
sketch1.addConstraint(Sketcher.Constraint("Vertical", 18, 3, 19, 3))
sketch1.addConstraint(Sketcher.Constraint("Vertical", 7, 3, 20, 3))
sketch1.addConstraint(Sketcher.Constraint("Vertical", 8, 3, 21, 3))
sketch1.addConstraint(Sketcher.Constraint("Vertical", 22, 3, 23, 3))
sketch1.addConstraint(Sketcher.Constraint("Vertical", 9, 3, 24, 3))
sketch1.addConstraint(Sketcher.Constraint("Vertical", 10, 3, 25, 3))
sketch1.addConstraint(Sketcher.Constraint("Vertical", 26, 3, 27, 3))
sketch1.addConstraint(Sketcher.Constraint("Vertical", 11, 3, 28, 3))
sketch1.addConstraint(Sketcher.Constraint("Vertical", 12, 3, 29, 3))
sketch1.addConstraint(Sketcher.Constraint("Diameter", 15, Q("8 mm")))
sketch1.addConstraint(Sketcher.Constraint("Diameter", 4, Q("3.7 mm")))
sketch1.addConstraint(Sketcher.Constraint("DistanceX", 1, 1, 1, 2, Q("282 mm")))
sketch1.addConstraint(Sketcher.Constraint("DistanceY", 0, 2, 0, 1, Q("90 mm")))
sketch1.addConstraint(Sketcher.Constraint("DistanceX", 4, 3, -1, 1, Q("136 mm")))
sketch1.addConstraint(Sketcher.Constraint("DistanceY", 4, 3, -1, 1, Q("40 mm")))
sketch1.addConstraint(Sketcher.Constraint("DistanceX", 5, 3, -1, 1, Q("120 mm")))
sketch1.addConstraint(Sketcher.Constraint("DistanceX", 6, 3, -1, 1, Q("104 mm")))
sketch1.addConstraint(Sketcher.Constraint("DistanceX", 7, 3, -1, 1, Q("88 mm")))
sketch1.addConstraint(Sketcher.Constraint("DistanceX", 8, 3, -1, 1, Q("72 mm")))
sketch1.addConstraint(Sketcher.Constraint("DistanceX", 9, 3, -1, 1, Q("56 mm")))
sketch1.addConstraint(Sketcher.Constraint("DistanceX", 10, 3, -1, 1, Q("40 mm")))
sketch1.addConstraint(Sketcher.Constraint("DistanceX", 11, 3, -1, 1, Q("24 mm")))
sketch1.addConstraint(Sketcher.Constraint("DistanceX", 12, 3, -1, 1, Q("8 mm")))
sketch1.addConstraint(Sketcher.Constraint("DistanceX", 13, 3, -1, 1, Q("128 mm")))
sketch1.addConstraint(Sketcher.Constraint("DistanceY", 13, 3, -1, 1, Q("8 mm")))
sketch1.addConstraint(Sketcher.Constraint("DistanceX", 18, 3, -1, 1, Q("96 mm")))
sketch1.addConstraint(Sketcher.Constraint("DistanceX", 22, 3, -1, 1, Q("64 mm")))
sketch1.addConstraint(Sketcher.Constraint("DistanceX", 26, 3, -1, 1, Q("32 mm")))
sketch1.setExpression("Constraints[181]", "Params.sketch1_diameter")
sketch1.setExpression("Constraints[182]", "Params.sketch1_diameter2")
sketch1.setExpression("Constraints[183]", "Params.sketch1_width")
sketch1.setExpression("Constraints[184]", "Params.sketch1_height")
pad1 = doc.addObject("PartDesign::Pad", "Pad")
body.addObject(pad1)
pad1.Profile = sketch1
pad1.setExpression("Length", "Params.pad1_length")

doc.recompute()
